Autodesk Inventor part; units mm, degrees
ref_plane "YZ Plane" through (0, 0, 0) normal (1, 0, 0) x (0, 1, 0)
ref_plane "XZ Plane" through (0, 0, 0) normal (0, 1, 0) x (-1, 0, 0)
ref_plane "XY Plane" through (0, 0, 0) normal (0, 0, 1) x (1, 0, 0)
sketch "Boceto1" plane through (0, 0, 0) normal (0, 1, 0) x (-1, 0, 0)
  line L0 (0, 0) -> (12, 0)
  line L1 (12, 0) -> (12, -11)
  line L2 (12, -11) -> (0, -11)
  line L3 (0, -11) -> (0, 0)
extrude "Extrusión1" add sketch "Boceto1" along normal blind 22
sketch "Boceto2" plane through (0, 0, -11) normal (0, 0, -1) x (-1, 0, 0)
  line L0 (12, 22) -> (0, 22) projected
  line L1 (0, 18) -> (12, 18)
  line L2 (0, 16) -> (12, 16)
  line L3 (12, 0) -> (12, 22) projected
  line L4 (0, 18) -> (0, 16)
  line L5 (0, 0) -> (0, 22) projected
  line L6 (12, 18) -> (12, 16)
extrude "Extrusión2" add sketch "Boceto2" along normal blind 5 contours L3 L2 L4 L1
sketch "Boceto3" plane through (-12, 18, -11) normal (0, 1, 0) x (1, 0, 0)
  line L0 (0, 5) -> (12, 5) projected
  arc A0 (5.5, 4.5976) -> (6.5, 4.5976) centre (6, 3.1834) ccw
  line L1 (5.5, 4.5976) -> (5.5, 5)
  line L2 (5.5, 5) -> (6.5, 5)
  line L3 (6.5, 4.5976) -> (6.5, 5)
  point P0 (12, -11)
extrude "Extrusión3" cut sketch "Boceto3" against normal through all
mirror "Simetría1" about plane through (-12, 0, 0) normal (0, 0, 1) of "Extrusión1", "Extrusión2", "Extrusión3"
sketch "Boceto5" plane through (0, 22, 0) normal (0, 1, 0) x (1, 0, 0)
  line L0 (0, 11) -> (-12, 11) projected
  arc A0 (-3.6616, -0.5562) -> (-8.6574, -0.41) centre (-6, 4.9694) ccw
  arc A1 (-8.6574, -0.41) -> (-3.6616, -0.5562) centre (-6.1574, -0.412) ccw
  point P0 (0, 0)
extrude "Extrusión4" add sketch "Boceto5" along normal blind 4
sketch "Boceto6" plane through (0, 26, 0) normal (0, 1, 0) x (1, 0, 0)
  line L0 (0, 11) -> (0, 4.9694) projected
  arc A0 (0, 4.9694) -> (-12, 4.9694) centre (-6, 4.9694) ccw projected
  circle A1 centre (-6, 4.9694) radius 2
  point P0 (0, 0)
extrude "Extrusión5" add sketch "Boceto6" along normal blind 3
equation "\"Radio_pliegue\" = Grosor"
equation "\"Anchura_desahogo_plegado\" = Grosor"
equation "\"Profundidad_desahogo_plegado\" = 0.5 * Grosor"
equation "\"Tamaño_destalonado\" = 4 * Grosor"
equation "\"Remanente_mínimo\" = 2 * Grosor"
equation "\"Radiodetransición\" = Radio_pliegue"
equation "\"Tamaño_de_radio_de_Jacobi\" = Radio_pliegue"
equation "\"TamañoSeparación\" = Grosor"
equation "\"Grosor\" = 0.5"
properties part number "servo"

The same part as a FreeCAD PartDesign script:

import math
import FreeCAD as App
import Part
import Sketcher
from FreeCAD import Vector
Q = App.Units.Quantity


def add_polygon(sketch, points):
    """Adds a closed chain of lines whose ends are joined by coincident constraints."""
    first, n = sketch.GeometryCount, len(points)
    for a, b in zip(points, points[1:] + points[:1]):
        sketch.addGeometry(Part.LineSegment(App.Vector(*a, 0), App.Vector(*b, 0)), False)
    for i in range(n):
        sketch.addConstraint(Sketcher.Constraint("Coincident", first + i, 2, first + (i + 1) % n, 1))

doc = App.newDocument("Part")
params = doc.addObject("Spreadsheet::Sheet", "Params")
for row, (alias, value) in enumerate([
    ("sketch1_width", "12 mm"),
    ("sketch1_height", "11 mm"),
    ("pad1_length", "22 mm"),
    ("sketch2_width", "12 mm"),
    ("sketch2_height", "2 mm"),
    ("pad2_length", "5 mm"),
    ("sketch3_radius", "1.5 mm"),
    ("sketch3_width", "1 mm"),
    ("sketch4_radius", "6 mm"),
    ("sketch4_radius2", "2.5 mm"),
    ("pad3_length", "4 mm"),
    ("sketch5_diameter", "4 mm"),
    ("pad4_length", "3 mm"),
], start=1):
    params.set(f"A{row}", alias)
    params.set(f"B{row}", "=" + value)
    params.setAlias(f"B{row}", alias)

body = doc.addObject("PartDesign::Body", "Body")

sketch1 = doc.addObject("Sketcher::SketchObject", "Sketch")
body.addObject(sketch1)
sketch1.AttachmentSupport = (doc.XZ_Plane, [""])
sketch1.MapMode = "FlatFace"
add_polygon(sketch1, [(-12, 0), (0, 0), (0, -11), (-12, -11)])
sketch1.addConstraint(Sketcher.Constraint("Horizontal", 0))
sketch1.addConstraint(Sketcher.Constraint("Vertical", 1))
sketch1.addConstraint(Sketcher.Constraint("Horizontal", 2))
sketch1.addConstraint(Sketcher.Constraint("Vertical", 3))
sketch1.addConstraint(Sketcher.Constraint("Coincident", 0, 2, -1, 1))
sketch1.addConstraint(Sketcher.Constraint("DistanceX", 0, 1, 0, 2, Q("12 mm")))
sketch1.addConstraint(Sketcher.Constraint("DistanceY", 1, 2, 1, 1, Q("11 mm")))
sketch1.setExpression("Constraints[9]", "Params.sketch1_width")
sketch1.setExpression("Constraints[10]", "Params.sketch1_height")
pad1 = doc.addObject("PartDesign::Pad", "Pad")
body.addObject(pad1)
pad1.Profile = sketch1
pad1.setExpression("Length", "Params.pad1_length")
pad1.Reversed = True

sketch2 = doc.addObject("Sketcher::SketchObject", "Sketch001")
body.addObject(sketch2)
sketch2.AttachmentSupport = (doc.XY_Plane, [""])
sketch2.MapMode = "FlatFace"
sketch2.AttachmentOffset = App.Placement(Vector(0, 0, -11), App.Rotation())
add_polygon(sketch2, [(-12, 16), (-12, 18), (0, 18), (0, 16)])
sketch2.addConstraint(Sketcher.Constraint("Vertical", 0))
sketch2.addConstraint(Sketcher.Constraint("Horizontal", 1))
sketch2.addConstraint(Sketcher.Constraint("Vertical", 2))
sketch2.addConstraint(Sketcher.Constraint("Horizontal", 3))
sketch2.addConstraint(Sketcher.Constraint("PointOnObject", 1, 2, -2))
sketch2.addConstraint(Sketcher.Constraint("DistanceX", 1, 1, 1, 2, Q("12 mm")))
sketch2.addConstraint(Sketcher.Constraint("DistanceY", 0, 1, 0, 2, Q("2 mm")))
sketch2.addConstraint(Sketcher.Constraint("DistanceY", -1, 1, 0, 2, Q("18 mm")))
sketch2.setExpression("Constraints[9]", "Params.sketch2_width")
sketch2.setExpression("Constraints[10]", "Params.sketch2_height")
pad2 = doc.addObject("PartDesign::Pad", "Pad001")
body.addObject(pad2)
pad2.Profile = sketch2
pad2.setExpression("Length", "Params.pad2_length")
pad2.Reversed = True

sketch3 = doc.addObject("Sketcher::SketchObject", "Sketch002")
body.addObject(sketch3)
sketch3.AttachmentSupport = (doc.XZ_Plane, [""])
sketch3.MapMode = "FlatFace"
sketch3.AttachmentOffset = App.Placement(Vector(0, 0, -18), App.Rotation())
sketch3.addGeometry(Part.LineSegment(Vector(-5.5, -16, 0), Vector(-6.5, -16, 0)), False)
sketch3.addGeometry(Part.LineSegment(Vector(-6.5, -16, 0), Vector(-6.5, -15.6, 0)), False)
sketch3.addGeometry(Part.ArcOfCircle(Part.Circle(Vector(-6, -14.18, 0), Vector(0, 0, 1), 1.5), math.radians(-71), math.radians(251)), False)
sketch3.addGeometry(Part.LineSegment(Vector(-5.5, -15.6, 0), Vector(-5.5, -16, 0)), False)
sketch3.addConstraint(Sketcher.Constraint("Coincident", 0, 2, 1, 1))
sketch3.addConstraint(Sketcher.Constraint("Coincident", 1, 2, 2, 2))
sketch3.addConstraint(Sketcher.Constraint("Coincident", 2, 1, 3, 1))
sketch3.addConstraint(Sketcher.Constraint("Coincident", 3, 2, 0, 1))
sketch3.addConstraint(Sketcher.Constraint("Horizontal", 0))
sketch3.addConstraint(Sketcher.Constraint("Vertical", 1))
sketch3.addConstraint(Sketcher.Constraint("Vertical", 3))
sketch3.addConstraint(Sketcher.Constraint("Horizontal", 1, 2, 2, 1))
sketch3.addConstraint(Sketcher.Constraint("Radius", 2, Q("1.5 mm")))
sketch3.addConstraint(Sketcher.Constraint("DistanceX", 0, 2, 0, 1, Q("1 mm")))
sketch3.addConstraint(Sketcher.Constraint("DistanceX", 2, 3, -1, 1, Q("6 mm")))
sketch3.addConstraint(Sketcher.Constraint("DistanceY", 0, 2, -1, 1, Q("16 mm")))
sketch3.addConstraint(Sketcher.Constraint("DistanceY", 1, 1, 1, 2, Q("0.4024 mm")))
sketch3.setExpression("Constraints[8]", "Params.sketch3_radius")
sketch3.setExpression("Constraints[9]", "Params.sketch3_width")
pocket1 = doc.addObject("PartDesign::Pocket", "Pocket")
body.addObject(pocket1)
pocket1.Profile = sketch3
pocket1.Type = "ThroughAll"
pocket1.Reversed = True
doc.recompute()

mirrored = doc.addObject("PartDesign::Mirrored", "Mirrored")
body.addObject(mirrored)
mirrored.Originals = [pad1, pad2, pocket1]
mirrored.MirrorPlane = (doc.XY_Plane, [""])
body.Tip = mirrored

sketch4 = doc.addObject("Sketcher::SketchObject", "Sketch003")
body.addObject(sketch4)
sketch4.AttachmentSupport = (doc.XZ_Plane, [""])
sketch4.MapMode = "FlatFace"
sketch4.AttachmentOffset = App.Placement(Vector(0, 0, -22), App.Rotation())
sketch4.addGeometry(Part.ArcOfCircle(Part.Circle(Vector(-6.2, 0.4, 0), Vector(0, 0, 1), 2.5), math.radians(3), math.radians(180)), False)
sketch4.addGeometry(Part.ArcOfCircle(Part.Circle(Vector(-6, -5, 0), Vector(0, 0, 1), 6), math.radians(116), math.radians(427)), False)
sketch4.addConstraint(Sketcher.Constraint("Coincident", 0, 1, 1, 2))
sketch4.addConstraint(Sketcher.Constraint("Coincident", 1, 1, 0, 2))
sketch4.addConstraint(Sketcher.Constraint("Radius", 1, Q("6 mm")))
sketch4.addConstraint(Sketcher.Constraint("Radius", 0, Q("2.5 mm")))
sketch4.addConstraint(Sketcher.Constraint("DistanceX", 1, 3, -1, 1, Q("6 mm")))
sketch4.addConstraint(Sketcher.Constraint("DistanceY", -1, 1, 1, 1, Q("0.41 mm")))
sketch4.addConstraint(Sketcher.Constraint("DistanceY", -1, 1, 0, 3, Q("0.412 mm")))
sketch4.addConstraint(Sketcher.Constraint("DistanceX", 0, 3, -1, 1, Q("6.1574 mm")))
sketch4.setExpression("Constraints[2]", "Params.sketch4_radius")
sketch4.setExpression("Constraints[3]", "Params.sketch4_radius2")
pad3 = doc.addObject("PartDesign::Pad", "Pad002")
body.addObject(pad3)
pad3.Profile = sketch4
pad3.setExpression("Length", "Params.pad3_length")
pad3.Reversed = True

sketch5 = doc.addObject("Sketcher::SketchObject", "Sketch004")
body.addObject(sketch5)
sketch5.AttachmentSupport = (doc.XZ_Plane, [""])
sketch5.MapMode = "FlatFace"
sketch5.AttachmentOffset = App.Placement(Vector(0, 0, -26), App.Rotation())
sketch5.addGeometry(Part.Circle(Vector(-6, -5, 0), Vector(0, 0, 1), 2), False)
sketch5.addConstraint(Sketcher.Constraint("Diameter", 0, Q("4 mm")))
sketch5.addConstraint(Sketcher.Constraint("DistanceX", 0, 3, -1, 1, Q("6 mm")))
sketch5.addConstraint(Sketcher.Constraint("DistanceY", 0, 3, -1, 1, Q("4.9694 mm")))
sketch5.setExpression("Constraints[0]", "Params.sketch5_diameter")
pad4 = doc.addObject("PartDesign::Pad", "Pad003")
body.addObject(pad4)
pad4.Profile = sketch5
pad4.setExpression("Length", "Params.pad4_length")
pad4.Reversed = True

doc.recompute()
